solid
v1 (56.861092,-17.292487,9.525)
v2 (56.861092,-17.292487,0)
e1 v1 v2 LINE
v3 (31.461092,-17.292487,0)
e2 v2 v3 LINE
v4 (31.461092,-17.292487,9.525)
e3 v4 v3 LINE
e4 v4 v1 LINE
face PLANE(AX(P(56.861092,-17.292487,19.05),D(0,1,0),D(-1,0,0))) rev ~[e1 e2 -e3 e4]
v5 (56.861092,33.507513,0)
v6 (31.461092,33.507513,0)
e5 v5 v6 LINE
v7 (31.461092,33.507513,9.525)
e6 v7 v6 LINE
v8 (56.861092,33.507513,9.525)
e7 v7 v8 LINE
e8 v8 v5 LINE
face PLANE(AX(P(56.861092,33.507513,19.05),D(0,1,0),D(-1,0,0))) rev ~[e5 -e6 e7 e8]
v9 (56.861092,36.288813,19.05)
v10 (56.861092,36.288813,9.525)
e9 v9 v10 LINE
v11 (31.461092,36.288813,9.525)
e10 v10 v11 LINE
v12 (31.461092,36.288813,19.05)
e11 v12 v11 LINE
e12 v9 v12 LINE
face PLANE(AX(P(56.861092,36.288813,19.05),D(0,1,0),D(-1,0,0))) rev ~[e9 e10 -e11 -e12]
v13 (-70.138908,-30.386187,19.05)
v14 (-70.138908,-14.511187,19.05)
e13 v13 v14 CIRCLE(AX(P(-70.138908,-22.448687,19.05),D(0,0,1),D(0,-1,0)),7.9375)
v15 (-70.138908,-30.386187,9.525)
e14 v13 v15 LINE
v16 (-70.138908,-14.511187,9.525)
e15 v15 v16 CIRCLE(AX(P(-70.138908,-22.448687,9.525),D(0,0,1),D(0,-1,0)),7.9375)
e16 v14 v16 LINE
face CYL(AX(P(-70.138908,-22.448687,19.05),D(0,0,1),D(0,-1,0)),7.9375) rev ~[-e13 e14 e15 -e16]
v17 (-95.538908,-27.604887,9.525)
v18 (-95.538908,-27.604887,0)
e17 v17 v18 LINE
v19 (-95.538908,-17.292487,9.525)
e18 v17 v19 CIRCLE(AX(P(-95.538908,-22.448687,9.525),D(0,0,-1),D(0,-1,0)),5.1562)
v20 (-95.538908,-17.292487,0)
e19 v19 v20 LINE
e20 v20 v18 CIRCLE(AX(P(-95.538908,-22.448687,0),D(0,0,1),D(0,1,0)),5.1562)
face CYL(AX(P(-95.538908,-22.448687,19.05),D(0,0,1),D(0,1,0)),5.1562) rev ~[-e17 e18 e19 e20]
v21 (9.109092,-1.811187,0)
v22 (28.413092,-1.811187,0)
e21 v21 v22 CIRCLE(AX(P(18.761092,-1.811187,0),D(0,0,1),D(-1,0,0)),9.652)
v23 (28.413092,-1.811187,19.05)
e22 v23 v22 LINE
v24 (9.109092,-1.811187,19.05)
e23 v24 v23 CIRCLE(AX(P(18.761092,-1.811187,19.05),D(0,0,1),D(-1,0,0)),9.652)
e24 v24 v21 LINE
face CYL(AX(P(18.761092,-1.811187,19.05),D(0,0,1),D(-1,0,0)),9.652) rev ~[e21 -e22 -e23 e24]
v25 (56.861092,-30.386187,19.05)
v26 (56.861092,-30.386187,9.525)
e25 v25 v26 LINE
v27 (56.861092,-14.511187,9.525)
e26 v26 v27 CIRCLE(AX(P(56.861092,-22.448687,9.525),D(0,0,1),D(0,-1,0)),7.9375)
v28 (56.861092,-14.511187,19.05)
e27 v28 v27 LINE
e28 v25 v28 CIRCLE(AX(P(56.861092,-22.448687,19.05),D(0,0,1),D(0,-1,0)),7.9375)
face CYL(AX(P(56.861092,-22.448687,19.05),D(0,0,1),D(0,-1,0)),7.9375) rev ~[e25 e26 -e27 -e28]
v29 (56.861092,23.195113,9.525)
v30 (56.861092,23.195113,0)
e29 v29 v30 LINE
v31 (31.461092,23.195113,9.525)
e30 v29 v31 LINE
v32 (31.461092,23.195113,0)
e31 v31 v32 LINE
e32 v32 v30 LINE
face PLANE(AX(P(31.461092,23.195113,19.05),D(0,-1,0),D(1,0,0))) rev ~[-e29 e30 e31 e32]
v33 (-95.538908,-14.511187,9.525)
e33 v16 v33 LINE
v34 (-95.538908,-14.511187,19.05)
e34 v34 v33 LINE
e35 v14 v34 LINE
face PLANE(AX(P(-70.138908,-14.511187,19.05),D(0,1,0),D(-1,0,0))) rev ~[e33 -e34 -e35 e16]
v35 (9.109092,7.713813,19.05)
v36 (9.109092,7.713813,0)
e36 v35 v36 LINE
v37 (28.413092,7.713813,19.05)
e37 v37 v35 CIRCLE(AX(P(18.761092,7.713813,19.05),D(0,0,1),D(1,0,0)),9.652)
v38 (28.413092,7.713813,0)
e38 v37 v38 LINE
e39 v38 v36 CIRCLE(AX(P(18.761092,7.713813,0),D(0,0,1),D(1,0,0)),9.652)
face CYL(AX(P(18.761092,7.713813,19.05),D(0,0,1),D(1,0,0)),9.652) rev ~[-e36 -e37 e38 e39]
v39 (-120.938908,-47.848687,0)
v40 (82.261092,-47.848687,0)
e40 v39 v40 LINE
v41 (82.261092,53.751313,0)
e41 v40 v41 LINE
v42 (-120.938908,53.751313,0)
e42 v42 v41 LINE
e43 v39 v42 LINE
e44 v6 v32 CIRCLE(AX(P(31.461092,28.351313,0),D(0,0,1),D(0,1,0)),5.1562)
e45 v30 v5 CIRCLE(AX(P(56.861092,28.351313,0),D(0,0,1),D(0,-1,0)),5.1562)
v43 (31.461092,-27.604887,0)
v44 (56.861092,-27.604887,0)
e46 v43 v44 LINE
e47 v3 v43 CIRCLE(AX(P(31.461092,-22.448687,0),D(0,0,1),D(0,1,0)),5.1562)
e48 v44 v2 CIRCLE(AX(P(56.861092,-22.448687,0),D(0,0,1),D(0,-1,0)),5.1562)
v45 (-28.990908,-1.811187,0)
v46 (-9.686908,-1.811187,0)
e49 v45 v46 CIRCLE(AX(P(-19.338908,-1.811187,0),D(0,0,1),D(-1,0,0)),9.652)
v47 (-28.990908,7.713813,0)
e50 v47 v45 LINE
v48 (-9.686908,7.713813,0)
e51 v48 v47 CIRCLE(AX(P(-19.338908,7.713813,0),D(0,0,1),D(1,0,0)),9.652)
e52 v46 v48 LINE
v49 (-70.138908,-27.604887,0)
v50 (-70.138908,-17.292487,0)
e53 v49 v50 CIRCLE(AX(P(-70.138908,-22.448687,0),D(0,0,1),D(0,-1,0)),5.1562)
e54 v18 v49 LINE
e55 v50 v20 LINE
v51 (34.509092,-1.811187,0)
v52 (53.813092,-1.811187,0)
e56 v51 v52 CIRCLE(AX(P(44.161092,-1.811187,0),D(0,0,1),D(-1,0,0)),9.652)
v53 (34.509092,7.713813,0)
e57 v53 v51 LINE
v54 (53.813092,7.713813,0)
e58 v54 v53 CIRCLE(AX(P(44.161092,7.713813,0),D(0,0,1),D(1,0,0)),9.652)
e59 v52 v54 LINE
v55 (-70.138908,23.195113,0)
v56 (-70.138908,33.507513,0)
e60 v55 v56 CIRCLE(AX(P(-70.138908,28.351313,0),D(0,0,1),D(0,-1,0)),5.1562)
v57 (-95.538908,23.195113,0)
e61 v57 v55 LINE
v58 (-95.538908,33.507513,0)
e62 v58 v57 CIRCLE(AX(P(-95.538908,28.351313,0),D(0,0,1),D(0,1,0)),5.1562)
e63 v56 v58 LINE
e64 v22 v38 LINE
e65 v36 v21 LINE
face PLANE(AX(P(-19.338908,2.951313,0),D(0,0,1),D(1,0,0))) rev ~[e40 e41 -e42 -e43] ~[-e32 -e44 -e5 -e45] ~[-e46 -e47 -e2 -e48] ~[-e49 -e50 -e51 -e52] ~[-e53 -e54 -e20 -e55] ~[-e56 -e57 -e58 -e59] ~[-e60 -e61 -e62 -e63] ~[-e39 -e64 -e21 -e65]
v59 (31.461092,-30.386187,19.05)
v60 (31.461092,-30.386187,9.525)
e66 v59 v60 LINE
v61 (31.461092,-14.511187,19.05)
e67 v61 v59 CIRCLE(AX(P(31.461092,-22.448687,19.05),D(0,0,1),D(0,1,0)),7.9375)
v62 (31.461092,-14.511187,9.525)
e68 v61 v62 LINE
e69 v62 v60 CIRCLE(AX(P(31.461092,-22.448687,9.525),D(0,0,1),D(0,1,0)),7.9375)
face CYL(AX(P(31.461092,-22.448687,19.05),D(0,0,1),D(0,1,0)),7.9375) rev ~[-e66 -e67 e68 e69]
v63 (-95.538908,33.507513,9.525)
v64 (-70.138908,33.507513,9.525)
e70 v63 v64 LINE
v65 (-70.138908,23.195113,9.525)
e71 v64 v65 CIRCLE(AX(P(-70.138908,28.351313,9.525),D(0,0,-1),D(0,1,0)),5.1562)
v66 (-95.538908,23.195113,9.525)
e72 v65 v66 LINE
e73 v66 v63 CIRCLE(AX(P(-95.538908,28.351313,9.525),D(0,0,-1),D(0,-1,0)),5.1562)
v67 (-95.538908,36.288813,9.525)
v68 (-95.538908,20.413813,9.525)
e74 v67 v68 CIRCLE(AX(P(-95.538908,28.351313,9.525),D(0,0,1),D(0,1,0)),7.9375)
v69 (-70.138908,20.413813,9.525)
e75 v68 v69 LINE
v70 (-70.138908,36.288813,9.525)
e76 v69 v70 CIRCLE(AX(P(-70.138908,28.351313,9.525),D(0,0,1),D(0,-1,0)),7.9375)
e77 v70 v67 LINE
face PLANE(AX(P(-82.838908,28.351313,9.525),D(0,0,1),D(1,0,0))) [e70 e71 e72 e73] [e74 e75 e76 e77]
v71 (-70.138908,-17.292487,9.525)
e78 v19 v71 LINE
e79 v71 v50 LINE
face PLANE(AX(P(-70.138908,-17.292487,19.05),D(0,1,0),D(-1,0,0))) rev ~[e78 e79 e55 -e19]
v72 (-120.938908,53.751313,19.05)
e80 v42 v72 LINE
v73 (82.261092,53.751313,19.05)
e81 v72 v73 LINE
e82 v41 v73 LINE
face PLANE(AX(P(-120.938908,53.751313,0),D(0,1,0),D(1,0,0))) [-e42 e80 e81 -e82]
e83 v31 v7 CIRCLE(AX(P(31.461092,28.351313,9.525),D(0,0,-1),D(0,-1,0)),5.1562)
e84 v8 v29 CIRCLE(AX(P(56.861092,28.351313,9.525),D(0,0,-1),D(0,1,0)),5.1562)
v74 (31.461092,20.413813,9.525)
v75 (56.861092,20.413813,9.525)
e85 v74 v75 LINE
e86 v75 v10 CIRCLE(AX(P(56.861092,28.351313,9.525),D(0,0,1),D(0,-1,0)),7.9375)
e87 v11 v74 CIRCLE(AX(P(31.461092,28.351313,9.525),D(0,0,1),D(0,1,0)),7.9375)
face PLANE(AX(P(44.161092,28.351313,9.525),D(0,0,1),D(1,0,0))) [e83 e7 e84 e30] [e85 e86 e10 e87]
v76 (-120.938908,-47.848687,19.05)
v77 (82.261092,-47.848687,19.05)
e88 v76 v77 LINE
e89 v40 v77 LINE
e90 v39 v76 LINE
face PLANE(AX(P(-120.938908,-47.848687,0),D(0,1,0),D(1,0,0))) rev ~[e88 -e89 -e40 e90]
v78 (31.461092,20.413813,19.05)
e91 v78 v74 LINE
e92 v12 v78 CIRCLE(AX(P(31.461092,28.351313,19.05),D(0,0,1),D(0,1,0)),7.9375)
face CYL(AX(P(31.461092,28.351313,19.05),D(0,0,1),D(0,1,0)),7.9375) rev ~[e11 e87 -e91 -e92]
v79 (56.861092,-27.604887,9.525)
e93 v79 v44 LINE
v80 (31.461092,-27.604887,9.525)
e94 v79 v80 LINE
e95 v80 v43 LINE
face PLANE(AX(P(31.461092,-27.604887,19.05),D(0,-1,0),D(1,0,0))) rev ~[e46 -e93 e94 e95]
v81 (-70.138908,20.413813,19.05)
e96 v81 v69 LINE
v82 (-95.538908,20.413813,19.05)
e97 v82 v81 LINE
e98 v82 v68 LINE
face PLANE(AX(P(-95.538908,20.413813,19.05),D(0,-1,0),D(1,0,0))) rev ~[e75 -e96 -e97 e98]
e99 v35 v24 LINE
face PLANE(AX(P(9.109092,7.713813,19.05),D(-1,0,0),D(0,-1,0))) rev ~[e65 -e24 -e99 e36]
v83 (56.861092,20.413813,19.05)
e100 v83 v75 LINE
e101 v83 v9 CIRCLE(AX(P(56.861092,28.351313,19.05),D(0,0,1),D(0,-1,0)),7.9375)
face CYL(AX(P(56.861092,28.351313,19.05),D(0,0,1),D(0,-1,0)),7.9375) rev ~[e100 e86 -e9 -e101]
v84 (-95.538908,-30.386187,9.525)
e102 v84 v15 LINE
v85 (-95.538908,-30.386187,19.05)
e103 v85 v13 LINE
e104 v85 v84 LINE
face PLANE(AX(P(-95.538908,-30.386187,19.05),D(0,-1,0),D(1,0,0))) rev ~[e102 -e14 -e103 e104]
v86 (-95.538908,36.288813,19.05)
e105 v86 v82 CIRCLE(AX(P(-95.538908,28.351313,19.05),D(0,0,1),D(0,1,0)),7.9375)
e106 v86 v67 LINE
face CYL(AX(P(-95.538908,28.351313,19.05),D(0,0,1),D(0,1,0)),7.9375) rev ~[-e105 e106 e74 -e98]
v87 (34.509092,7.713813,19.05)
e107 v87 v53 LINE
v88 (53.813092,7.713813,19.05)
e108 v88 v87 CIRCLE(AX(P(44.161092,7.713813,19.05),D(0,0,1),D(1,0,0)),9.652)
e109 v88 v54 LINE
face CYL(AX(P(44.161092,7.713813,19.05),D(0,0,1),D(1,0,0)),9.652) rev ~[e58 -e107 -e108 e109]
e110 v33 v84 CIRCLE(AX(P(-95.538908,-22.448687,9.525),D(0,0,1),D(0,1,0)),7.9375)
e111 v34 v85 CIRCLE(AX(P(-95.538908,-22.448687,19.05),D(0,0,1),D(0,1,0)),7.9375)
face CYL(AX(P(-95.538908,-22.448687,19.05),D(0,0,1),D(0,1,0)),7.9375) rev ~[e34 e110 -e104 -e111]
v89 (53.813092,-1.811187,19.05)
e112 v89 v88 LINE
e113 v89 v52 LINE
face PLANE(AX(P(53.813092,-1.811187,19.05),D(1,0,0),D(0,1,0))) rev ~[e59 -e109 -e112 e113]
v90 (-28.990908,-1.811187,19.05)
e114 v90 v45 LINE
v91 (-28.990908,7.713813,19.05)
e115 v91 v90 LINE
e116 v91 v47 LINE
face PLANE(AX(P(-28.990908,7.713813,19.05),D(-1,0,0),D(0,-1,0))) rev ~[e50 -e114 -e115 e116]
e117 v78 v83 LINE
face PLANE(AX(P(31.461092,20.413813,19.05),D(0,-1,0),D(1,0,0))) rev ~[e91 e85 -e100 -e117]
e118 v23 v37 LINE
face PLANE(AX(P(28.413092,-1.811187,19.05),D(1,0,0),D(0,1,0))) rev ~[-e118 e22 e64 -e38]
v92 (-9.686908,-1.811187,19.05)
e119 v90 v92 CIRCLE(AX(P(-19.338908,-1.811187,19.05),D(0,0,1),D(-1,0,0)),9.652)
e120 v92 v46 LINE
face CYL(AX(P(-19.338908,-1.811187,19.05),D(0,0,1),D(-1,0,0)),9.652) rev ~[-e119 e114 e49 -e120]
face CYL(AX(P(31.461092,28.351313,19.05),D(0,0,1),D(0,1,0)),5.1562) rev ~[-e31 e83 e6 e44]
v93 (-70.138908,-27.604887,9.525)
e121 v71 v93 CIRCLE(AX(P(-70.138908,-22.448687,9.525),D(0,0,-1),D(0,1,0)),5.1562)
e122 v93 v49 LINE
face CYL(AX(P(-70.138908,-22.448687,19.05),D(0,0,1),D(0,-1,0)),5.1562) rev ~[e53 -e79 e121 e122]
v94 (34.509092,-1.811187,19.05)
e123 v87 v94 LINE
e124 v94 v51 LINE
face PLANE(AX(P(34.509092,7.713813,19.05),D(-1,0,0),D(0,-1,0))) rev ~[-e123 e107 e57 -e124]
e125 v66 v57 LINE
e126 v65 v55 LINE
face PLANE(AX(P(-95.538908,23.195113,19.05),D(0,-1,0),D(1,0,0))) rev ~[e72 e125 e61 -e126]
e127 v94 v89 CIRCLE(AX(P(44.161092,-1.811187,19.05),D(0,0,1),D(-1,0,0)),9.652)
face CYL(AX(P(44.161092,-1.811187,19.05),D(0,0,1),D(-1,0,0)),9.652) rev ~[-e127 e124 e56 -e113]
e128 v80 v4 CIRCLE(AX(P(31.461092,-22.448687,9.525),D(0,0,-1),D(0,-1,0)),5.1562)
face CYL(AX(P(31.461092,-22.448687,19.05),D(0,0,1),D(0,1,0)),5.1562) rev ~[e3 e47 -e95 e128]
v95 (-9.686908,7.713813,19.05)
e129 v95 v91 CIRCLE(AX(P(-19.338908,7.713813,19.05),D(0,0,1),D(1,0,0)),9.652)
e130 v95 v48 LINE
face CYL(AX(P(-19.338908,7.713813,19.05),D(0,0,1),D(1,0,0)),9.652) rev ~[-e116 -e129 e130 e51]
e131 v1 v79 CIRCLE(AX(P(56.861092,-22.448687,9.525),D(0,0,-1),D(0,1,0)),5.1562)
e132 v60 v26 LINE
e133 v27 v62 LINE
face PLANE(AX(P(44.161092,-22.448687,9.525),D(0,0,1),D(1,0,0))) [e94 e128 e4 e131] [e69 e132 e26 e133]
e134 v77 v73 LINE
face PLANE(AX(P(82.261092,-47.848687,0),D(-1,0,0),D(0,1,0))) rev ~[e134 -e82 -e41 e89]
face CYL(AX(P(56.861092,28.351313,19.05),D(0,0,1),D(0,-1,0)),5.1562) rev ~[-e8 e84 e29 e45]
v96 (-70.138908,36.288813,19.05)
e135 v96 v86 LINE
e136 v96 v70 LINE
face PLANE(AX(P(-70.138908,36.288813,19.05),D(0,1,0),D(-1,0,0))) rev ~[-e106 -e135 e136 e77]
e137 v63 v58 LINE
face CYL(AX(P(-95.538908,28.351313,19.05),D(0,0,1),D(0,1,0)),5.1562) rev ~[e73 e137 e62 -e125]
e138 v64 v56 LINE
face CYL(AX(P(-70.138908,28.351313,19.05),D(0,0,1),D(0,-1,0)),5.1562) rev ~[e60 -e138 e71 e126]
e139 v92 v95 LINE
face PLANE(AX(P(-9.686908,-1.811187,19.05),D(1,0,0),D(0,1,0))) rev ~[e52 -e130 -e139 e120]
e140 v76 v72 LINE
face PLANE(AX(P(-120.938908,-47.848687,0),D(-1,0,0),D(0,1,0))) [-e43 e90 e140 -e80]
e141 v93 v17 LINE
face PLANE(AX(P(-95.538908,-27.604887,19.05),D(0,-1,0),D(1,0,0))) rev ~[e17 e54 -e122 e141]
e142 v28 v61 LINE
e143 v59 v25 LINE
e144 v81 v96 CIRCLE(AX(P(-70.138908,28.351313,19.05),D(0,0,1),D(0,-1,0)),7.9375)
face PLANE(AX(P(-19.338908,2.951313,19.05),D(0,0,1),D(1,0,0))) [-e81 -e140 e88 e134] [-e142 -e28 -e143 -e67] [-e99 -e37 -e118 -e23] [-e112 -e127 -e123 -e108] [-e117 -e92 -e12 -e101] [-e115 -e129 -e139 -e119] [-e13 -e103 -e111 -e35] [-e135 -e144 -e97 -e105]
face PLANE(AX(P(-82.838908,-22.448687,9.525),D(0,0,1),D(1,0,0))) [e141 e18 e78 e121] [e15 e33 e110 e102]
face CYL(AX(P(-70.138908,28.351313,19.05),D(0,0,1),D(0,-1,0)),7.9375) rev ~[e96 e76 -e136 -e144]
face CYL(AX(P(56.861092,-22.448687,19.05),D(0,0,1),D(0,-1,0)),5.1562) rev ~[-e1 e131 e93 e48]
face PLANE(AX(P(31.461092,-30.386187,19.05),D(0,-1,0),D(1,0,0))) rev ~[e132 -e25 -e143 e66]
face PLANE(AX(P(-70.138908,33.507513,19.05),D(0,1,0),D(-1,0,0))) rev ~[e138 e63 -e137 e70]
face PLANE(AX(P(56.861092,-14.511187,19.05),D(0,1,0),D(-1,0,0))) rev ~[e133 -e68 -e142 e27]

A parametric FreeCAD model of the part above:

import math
import FreeCAD as App
import Part
import Sketcher
from FreeCAD import Vector
Q = App.Units.Quantity

doc = App.newDocument("Part")
params = doc.addObject("Spreadsheet::Sheet", "Params")
for row, (alias, value) in enumerate([
    ("sketch1_width", "8 in"),
    ("sketch1_height", "4 in"),
    ("pad1_length", "0.75 in"),
    ("sketch2_width", "1 in"),
    ("sketch2_radius", "0.203 in"),
    ("sketch3_width", "1 in"),
    ("sketch3_radius", "0.3125 in"),
    ("sketch3_radius2", "0.203 in"),
    ("pocket2_length", "0.375 in"),
    ("sketch4_radius", "0.38 in"),
    ("sketch4_height", "0.375 in"),
], start=1):
    params.set(f"A{row}", alias)
    params.set(f"B{row}", "=" + value)
    params.setAlias(f"B{row}", alias)

body = doc.addObject("PartDesign::Body", "Body")

sketch1 = body.newObject("Sketcher::SketchObject", "Sketch")
sketch1.AttachmentSupport = (doc.getObject("XY_Plane"), [""])
sketch1.MapMode = "FlatFace"
sketch1.addGeometry(Part.LineSegment(Vector(-121, 54, 0), Vector(-121, -48, 0)), False)
sketch1.addGeometry(Part.LineSegment(Vector(-121, -48, 0), Vector(82, -48, 0)), False)
sketch1.addGeometry(Part.LineSegment(Vector(82, -48, 0), Vector(82, 54, 0)), False)
sketch1.addGeometry(Part.LineSegment(Vector(82, 54, 0), Vector(-121, 54, 0)), False)
sketch1.addConstraint(Sketcher.Constraint("Coincident", 0, 2, 1, 1))
sketch1.addConstraint(Sketcher.Constraint("Coincident", 1, 2, 2, 1))
sketch1.addConstraint(Sketcher.Constraint("Coincident", 2, 2, 3, 1))
sketch1.addConstraint(Sketcher.Constraint("Coincident", 3, 2, 0, 1))
sketch1.addConstraint(Sketcher.Constraint("Vertical", 0))
sketch1.addConstraint(Sketcher.Constraint("Horizontal", 1))
sketch1.addConstraint(Sketcher.Constraint("Vertical", 2))
sketch1.addConstraint(Sketcher.Constraint("Horizontal", 3))
sketch1.addConstraint(Sketcher.Constraint("DistanceX", 1, 1, 1, 2, Q("8 in")))
sketch1.addConstraint(Sketcher.Constraint("DistanceY", 0, 2, 0, 1, Q("4 in")))
sketch1.addConstraint(Sketcher.Constraint("DistanceX", 0, 2, -1, 1, Q("120.938908 mm")))
sketch1.addConstraint(Sketcher.Constraint("DistanceY", 0, 2, -1, 1, Q("47.848687 mm")))
sketch1.setExpression("Constraints[8]", "Params.sketch1_width")
sketch1.setExpression("Constraints[9]", "Params.sketch1_height")
pad1 = body.newObject("PartDesign::Pad", "Pad")
pad1.Profile = sketch1
pad1.setExpression("Length", "Params.pad1_length")

sketch2 = body.newObject("Sketcher::SketchObject", "Sketch001")
sketch2.AttachmentSupport = (doc.getObject("XY_Plane"), [""])
sketch2.MapMode = "FlatFace"
sketch2.AttachmentOffset = App.Placement(Vector(0, 0, 0.75 * 25.4), App.Rotation())
sketch2.addGeometry(Part.ArcOfCircle(Part.Circle(Vector(-96, 28, 0), Vector(0, 0, 1), 5), math.radians(90), math.radians(270)), False)
sketch2.addGeometry(Part.LineSegment(Vector(-96, 23, 0), Vector(-70, 23, 0)), False)
sketch2.addGeometry(Part.ArcOfCircle(Part.Circle(Vector(-70, 28, 0), Vector(0, 0, 1), 5), math.radians(-90), math.radians(90)), False)
sketch2.addGeometry(Part.LineSegment(Vector(-70, 34, 0), Vector(-96, 34, 0)), False)
sketch2.addGeometry(Part.LineSegment(Vector(57, 34, 0), Vector(31, 34, 0)), False)
sketch2.addGeometry(Part.ArcOfCircle(Part.Circle(Vector(31, 28, 0), Vector(0, 0, 1), 5), math.radians(90), math.radians(270)), False)
sketch2.addGeometry(Part.LineSegment(Vector(31, 23, 0), Vector(57, 23, 0)), False)
sketch2.addGeometry(Part.ArcOfCircle(Part.Circle(Vector(57, 28, 0), Vector(0, 0, 1), 5), math.radians(-90), math.radians(90)), False)
sketch2.addGeometry(Part.LineSegment(Vector(31, -28, 0), Vector(57, -28, 0)), False)
sketch2.addGeometry(Part.ArcOfCircle(Part.Circle(Vector(57, -22, 0), Vector(0, 0, 1), 5), math.radians(-90), math.radians(90)), False)
sketch2.addGeometry(Part.LineSegment(Vector(57, -17, 0), Vector(31, -17, 0)), False)
sketch2.addGeometry(Part.ArcOfCircle(Part.Circle(Vector(31, -22, 0), Vector(0, 0, 1), 5), math.radians(90), math.radians(270)), False)
sketch2.addGeometry(Part.LineSegment(Vector(-70, -17, 0), Vector(-96, -17, 0)), False)
sketch2.addGeometry(Part.ArcOfCircle(Part.Circle(Vector(-96, -22, 0), Vector(0, 0, 1), 5), math.radians(90), math.radians(270)), False)
sketch2.addGeometry(Part.LineSegment(Vector(-96, -28, 0), Vector(-70, -28, 0)), False)
sketch2.addGeometry(Part.ArcOfCircle(Part.Circle(Vector(-70, -22, 0), Vector(0, 0, 1), 5), math.radians(-90), math.radians(90)), False)
sketch2.addConstraint(Sketcher.Constraint("Tangent", 0, 2, 1, 1))
sketch2.addConstraint(Sketcher.Constraint("Tangent", 1, 2, 2, 1))
sketch2.addConstraint(Sketcher.Constraint("Tangent", 2, 2, 3, 1))
sketch2.addConstraint(Sketcher.Constraint("Tangent", 3, 2, 0, 1))
sketch2.addConstraint(Sketcher.Constraint("Tangent", 4, 2, 5, 1))
sketch2.addConstraint(Sketcher.Constraint("Tangent", 5, 2, 6, 1))
sketch2.addConstraint(Sketcher.Constraint("Tangent", 6, 2, 7, 1))
sketch2.addConstraint(Sketcher.Constraint("Tangent", 7, 2, 4, 1))
sketch2.addConstraint(Sketcher.Constraint("Tangent", 8, 2, 9, 1))
sketch2.addConstraint(Sketcher.Constraint("Tangent", 9, 2, 10, 1))
sketch2.addConstraint(Sketcher.Constraint("Tangent", 10, 2, 11, 1))
sketch2.addConstraint(Sketcher.Constraint("Tangent", 11, 2, 8, 1))
sketch2.addConstraint(Sketcher.Constraint("Tangent", 12, 2, 13, 1))
sketch2.addConstraint(Sketcher.Constraint("Tangent", 13, 2, 14, 1))
sketch2.addConstraint(Sketcher.Constraint("Tangent", 14, 2, 15, 1))
sketch2.addConstraint(Sketcher.Constraint("Tangent", 15, 2, 12, 1))
sketch2.addConstraint(Sketcher.Constraint("Horizontal", 1))
sketch2.addConstraint(Sketcher.Constraint("Horizontal", 3))
sketch2.addConstraint(Sketcher.Constraint("Horizontal", 4))
sketch2.addConstraint(Sketcher.Constraint("Horizontal", 6))
sketch2.addConstraint(Sketcher.Constraint("Horizontal", 8))
sketch2.addConstraint(Sketcher.Constraint("Horizontal", 10))
sketch2.addConstraint(Sketcher.Constraint("Horizontal", 12))
sketch2.addConstraint(Sketcher.Constraint("Horizontal", 14))
sketch2.addConstraint(Sketcher.Constraint("Equal", 2, 5))
sketch2.addConstraint(Sketcher.Constraint("Equal", 7, 9))
sketch2.addConstraint(Sketcher.Constraint("Equal", 11, 13))
sketch2.addConstraint(Sketcher.Constraint("Horizontal", 2, 3, 5, 3))
sketch2.addConstraint(Sketcher.Constraint("Horizontal", 11, 3, 13, 3))
sketch2.addConstraint(Sketcher.Constraint("Vertical", 7, 3, 9, 3))
sketch2.addConstraint(Sketcher.Constraint("Vertical", 5, 3, 11, 3))
sketch2.addConstraint(Sketcher.Constraint("Vertical", 0, 3, 13, 3))
sketch2.addConstraint(Sketcher.Constraint("Vertical", 2, 3, 15, 3))
sketch2.addConstraint(Sketcher.Constraint("Equal", 3, 4))
sketch2.addConstraint(Sketcher.Constraint("DistanceX", 1, 1, 1, 2, Q("1 in")))
sketch2.addConstraint(Sketcher.Constraint("Radius", 0, Q("0.203 in")))
sketch2.addConstraint(Sketcher.Constraint("DistanceX", 2, 3, 5, 3, Q("4 in")))
sketch2.addConstraint(Sketcher.Constraint("DistanceY", 9, 3, 7, 3, Q("2 in")))
sketch2.addConstraint(Sketcher.Constraint("DistanceX", 0, 3, -1, 1, Q("95.538908 mm")))
sketch2.addConstraint(Sketcher.Constraint("DistanceY", -1, 1, 0, 3, Q("28.351313 mm")))
sketch2.setExpression("Constraints[34]", "Params.sketch2_width")
sketch2.setExpression("Constraints[35]", "Params.sketch2_radius")
pocket1 = body.newObject("PartDesign::Pocket", "Pocket")
pocket1.Profile = sketch2
pocket1.Type = "ThroughAll"

sketch3 = body.newObject("Sketcher::SketchObject", "Sketch002")
sketch3.AttachmentSupport = (doc.getObject("XY_Plane"), [""])
sketch3.MapMode = "FlatFace"
sketch3.AttachmentOffset = App.Placement(Vector(0, 0, 0.75 * 25.4), App.Rotation())
sketch3.addGeometry(Part.ArcOfCircle(Part.Circle(Vector(-96, 28, 0), Vector(0, 0, 1), 8), math.radians(90), math.radians(270)), False)
sketch3.addGeometry(Part.LineSegment(Vector(-96, 20, 0), Vector(-70, 20, 0)), False)
sketch3.addGeometry(Part.ArcOfCircle(Part.Circle(Vector(-70, 28, 0), Vector(0, 0, 1), 8), math.radians(-90), math.radians(90)), False)
sketch3.addGeometry(Part.LineSegment(Vector(-70, 36, 0), Vector(-96, 36, 0)), False)
sketch3.addGeometry(Part.ArcOfCircle(Part.Circle(Vector(-70, 28, 0), Vector(0, 0, 1), 5), math.radians(-90), math.radians(90)), False)
sketch3.addGeometry(Part.LineSegment(Vector(-70, 23, 0), Vector(-96, 23, 0)), False)
sketch3.addGeometry(Part.ArcOfCircle(Part.Circle(Vector(-96, 28, 0), Vector(0, 0, 1), 5), math.radians(90), math.radians(270)), False)
sketch3.addGeometry(Part.LineSegment(Vector(-96, 34, 0), Vector(-70, 34, 0)), False)
sketch3.addGeometry(Part.LineSegment(Vector(57, 36, 0), Vector(31, 36, 0)), False)
sketch3.addGeometry(Part.ArcOfCircle(Part.Circle(Vector(31, 28, 0), Vector(0, 0, 1), 8), math.radians(90), math.radians(270)), False)
sketch3.addGeometry(Part.LineSegment(Vector(31, 20, 0), Vector(57, 20, 0)), False)
sketch3.addGeometry(Part.ArcOfCircle(Part.Circle(Vector(57, 28, 0), Vector(0, 0, 1), 8), math.radians(-90), math.radians(90)), False)
sketch3.addGeometry(Part.LineSegment(Vector(57, 23, 0), Vector(31, 23, 0)), False)
sketch3.addGeometry(Part.ArcOfCircle(Part.Circle(Vector(31, 28, 0), Vector(0, 0, 1), 5), math.radians(90), math.radians(270)), False)
sketch3.addGeometry(Part.LineSegment(Vector(31, 34, 0), Vector(57, 34, 0)), False)
sketch3.addGeometry(Part.ArcOfCircle(Part.Circle(Vector(57, 28, 0), Vector(0, 0, 1), 5), math.radians(-90), math.radians(90)), False)
sketch3.addGeometry(Part.LineSegment(Vector(-96, -30, 0), Vector(-70, -30, 0)), False)
sketch3.addGeometry(Part.ArcOfCircle(Part.Circle(Vector(-70, -22, 0), Vector(0, 0, 1), 8), math.radians(-90), math.radians(90)), False)
sketch3.addGeometry(Part.LineSegment(Vector(-70, -15, 0), Vector(-96, -15, 0)), False)
sketch3.addGeometry(Part.ArcOfCircle(Part.Circle(Vector(-96, -22, 0), Vector(0, 0, 1), 8), math.radians(90), math.radians(270)), False)
sketch3.addGeometry(Part.LineSegment(Vector(-70, -28, 0), Vector(-96, -28, 0)), False)
sketch3.addGeometry(Part.ArcOfCircle(Part.Circle(Vector(-96, -22, 0), Vector(0, 0, 1), 5), math.radians(90), math.radians(270)), False)
sketch3.addGeometry(Part.LineSegment(Vector(-96, -17, 0), Vector(-70, -17, 0)), False)
sketch3.addGeometry(Part.ArcOfCircle(Part.Circle(Vector(-70, -22, 0), Vector(0, 0, 1), 5), math.radians(-90), math.radians(90)), False)
sketch3.addGeometry(Part.LineSegment(Vector(31, -30, 0), Vector(57, -30, 0)), False)
sketch3.addGeometry(Part.ArcOfCircle(Part.Circle(Vector(57, -22, 0), Vector(0, 0, 1), 8), math.radians(-90), math.radians(90)), False)
sketch3.addGeometry(Part.LineSegment(Vector(57, -15, 0), Vector(31, -15, 0)), False)
sketch3.addGeometry(Part.ArcOfCircle(Part.Circle(Vector(31, -22, 0), Vector(0, 0, 1), 8), math.radians(90), math.radians(270)), False)
sketch3.addGeometry(Part.LineSegment(Vector(31, -17, 0), Vector(57, -17, 0)), False)
sketch3.addGeometry(Part.ArcOfCircle(Part.Circle(Vector(57, -22, 0), Vector(0, 0, 1), 5), math.radians(-90), math.radians(90)), False)
sketch3.addGeometry(Part.LineSegment(Vector(57, -28, 0), Vector(31, -28, 0)), False)
sketch3.addGeometry(Part.ArcOfCircle(Part.Circle(Vector(31, -22, 0), Vector(0, 0, 1), 5), math.radians(90), math.radians(270)), False)
sketch3.addConstraint(Sketcher.Constraint("Tangent", 0, 2, 1, 1))
sketch3.addConstraint(Sketcher.Constraint("Tangent", 1, 2, 2, 1))
sketch3.addConstraint(Sketcher.Constraint("Tangent", 2, 2, 3, 1))
sketch3.addConstraint(Sketcher.Constraint("Tangent", 3, 2, 0, 1))
sketch3.addConstraint(Sketcher.Constraint("Tangent", 4, 1, 5, 1))
sketch3.addConstraint(Sketcher.Constraint("Tangent", 5, 2, 6, 2))
sketch3.addConstraint(Sketcher.Constraint("Tangent", 6, 1, 7, 1))
sketch3.addConstraint(Sketcher.Constraint("Tangent", 7, 2, 4, 2))
sketch3.addConstraint(Sketcher.Constraint("Tangent", 8, 2, 9, 1))
sketch3.addConstraint(Sketcher.Constraint("Tangent", 9, 2, 10, 1))
sketch3.addConstraint(Sketcher.Constraint("Tangent", 10, 2, 11, 1))
sketch3.addConstraint(Sketcher.Constraint("Tangent", 11, 2, 8, 1))
sketch3.addConstraint(Sketcher.Constraint("Tangent", 12, 2, 13, 2))
sketch3.addConstraint(Sketcher.Constraint("Tangent", 13, 1, 14, 1))
sketch3.addConstraint(Sketcher.Constraint("Tangent", 14, 2, 15, 2))
sketch3.addConstraint(Sketcher.Constraint("Tangent", 15, 1, 12, 1))
sketch3.addConstraint(Sketcher.Constraint("Tangent", 16, 2, 17, 1))
sketch3.addConstraint(Sketcher.Constraint("Tangent", 17, 2, 18, 1))
sketch3.addConstraint(Sketcher.Constraint("Tangent", 18, 2, 19, 1))
sketch3.addConstraint(Sketcher.Constraint("Tangent", 19, 2, 16, 1))
sketch3.addConstraint(Sketcher.Constraint("Tangent", 20, 2, 21, 2))
sketch3.addConstraint(Sketcher.Constraint("Tangent", 21, 1, 22, 1))
sketch3.addConstraint(Sketcher.Constraint("Tangent", 22, 2, 23, 2))
sketch3.addConstraint(Sketcher.Constraint("Tangent", 23, 1, 20, 1))
sketch3.addConstraint(Sketcher.Constraint("Tangent", 24, 2, 25, 1))
sketch3.addConstraint(Sketcher.Constraint("Tangent", 25, 2, 26, 1))
sketch3.addConstraint(Sketcher.Constraint("Tangent", 26, 2, 27, 1))
sketch3.addConstraint(Sketcher.Constraint("Tangent", 27, 2, 24, 1))
sketch3.addConstraint(Sketcher.Constraint("Tangent", 28, 2, 29, 2))
sketch3.addConstraint(Sketcher.Constraint("Tangent", 29, 1, 30, 1))
sketch3.addConstraint(Sketcher.Constraint("Tangent", 30, 2, 31, 2))
sketch3.addConstraint(Sketcher.Constraint("Tangent", 31, 1, 28, 1))
sketch3.addConstraint(Sketcher.Constraint("Horizontal", 1))
sketch3.addConstraint(Sketcher.Constraint("Horizontal", 3))
sketch3.addConstraint(Sketcher.Constraint("Horizontal", 5))
sketch3.addConstraint(Sketcher.Constraint("Horizontal", 7))
sketch3.addConstraint(Sketcher.Constraint("Horizontal", 8))
sketch3.addConstraint(Sketcher.Constraint("Horizontal", 10))
sketch3.addConstraint(Sketcher.Constraint("Horizontal", 12))
sketch3.addConstraint(Sketcher.Constraint("Horizontal", 14))
sketch3.addConstraint(Sketcher.Constraint("Horizontal", 16))
sketch3.addConstraint(Sketcher.Constraint("Horizontal", 18))
sketch3.addConstraint(Sketcher.Constraint("Horizontal", 20))
sketch3.addConstraint(Sketcher.Constraint("Horizontal", 22))
sketch3.addConstraint(Sketcher.Constraint("Horizontal", 24))
sketch3.addConstraint(Sketcher.Constraint("Horizontal", 26))
sketch3.addConstraint(Sketcher.Constraint("Horizontal", 28))
sketch3.addConstraint(Sketcher.Constraint("Horizontal", 30))
sketch3.addConstraint(Sketcher.Constraint("Coincident", 4, 3, 2, 3))
sketch3.addConstraint(Sketcher.Constraint("Coincident", 13, 3, 9, 3))
sketch3.addConstraint(Sketcher.Constraint("Coincident", 21, 3, 19, 3))
sketch3.addConstraint(Sketcher.Constraint("Coincident", 29, 3, 25, 3))
sketch3.addConstraint(Sketcher.Constraint("Equal", 2, 9))
sketch3.addConstraint(Sketcher.Constraint("Equal", 6, 13))
sketch3.addConstraint(Sketcher.Constraint("Equal", 11, 17))
sketch3.addConstraint(Sketcher.Constraint("Equal", 15, 21))
sketch3.addConstraint(Sketcher.Constraint("Equal", 19, 25))
sketch3.addConstraint(Sketcher.Constraint("Equal", 23, 29))
sketch3.addConstraint(Sketcher.Constraint("Horizontal", 6, 3, 9, 3))
sketch3.addConstraint(Sketcher.Constraint("Horizontal", 23, 3, 25, 3))
sketch3.addConstraint(Sketcher.Constraint("Vertical", 4, 3, 17, 3))
sketch3.addConstraint(Sketcher.Constraint("Vertical", 6, 3, 19, 3))
sketch3.addConstraint(Sketcher.Constraint("Vertical", 4, 3, 23, 3))
sketch3.addConstraint(Sketcher.Constraint("Vertical", 15, 3, 25, 3))
sketch3.addConstraint(Sketcher.Constraint("Vertical", 13, 3, 27, 3))
sketch3.addConstraint(Sketcher.Constraint("Vertical", 13, 3, 31, 3))
sketch3.addConstraint(Sketcher.Constraint("Vertical", 21, 3, 0, 2))
sketch3.addConstraint(Sketcher.Constraint("Vertical", 29, 3, 10, 2))
sketch3.addConstraint(Sketcher.Constraint("Equal", 7, 8))
sketch3.addConstraint(Sketcher.Constraint("DistanceX", 1, 1, 1, 2, Q("1 in")))
sketch3.addConstraint(Sketcher.Constraint("Radius", 0, Q("0.3125 in")))
sketch3.addConstraint(Sketcher.Constraint("Radius", 4, Q("0.203 in")))
sketch3.addConstraint(Sketcher.Constraint("DistanceX", 2, 3, 9, 3, Q("4 in")))
sketch3.addConstraint(Sketcher.Constraint("DistanceY", 17, 3, 2, 3, Q("2 in")))
sketch3.addConstraint(Sketcher.Constraint("DistanceX", 0, 3, -1, 1, Q("95.538908 mm")))
sketch3.addConstraint(Sketcher.Constraint("DistanceY", -1, 1, 0, 3, Q("28.351313 mm")))
sketch3.setExpression("Constraints[69]", "Params.sketch3_width")
sketch3.setExpression("Constraints[70]", "Params.sketch3_radius")
sketch3.setExpression("Constraints[71]", "Params.sketch3_radius2")
pocket2 = body.newObject("PartDesign::Pocket", "Pocket001")
pocket2.Profile = sketch3
pocket2.setExpression("Length", "Params.pocket2_length")

sketch4 = body.newObject("Sketcher::SketchObject", "Sketch003")
sketch4.AttachmentSupport = (doc.getObject("XY_Plane"), [""])
sketch4.MapMode = "FlatFace"
sketch4.AttachmentOffset = App.Placement(Vector(0, 0, 0.75 * 25.4), App.Rotation())
sketch4.addGeometry(Part.LineSegment(Vector(-29, 8, 0), Vector(-29, -2, 0)), False)
sketch4.addGeometry(Part.ArcOfCircle(Part.Circle(Vector(-19, -2, 0), Vector(0, 0, 1), 10), math.radians(180), math.radians(360)), False)
sketch4.addGeometry(Part.LineSegment(Vector(-10, -2, 0), Vector(-10, 8, 0)), False)
sketch4.addGeometry(Part.ArcOfCircle(Part.Circle(Vector(-19, 8, 0), Vector(0, 0, 1), 10), math.radians(0), math.radians(180)), False)
sketch4.addGeometry(Part.LineSegment(Vector(9, 8, 0), Vector(9, -2, 0)), False)
sketch4.addGeometry(Part.ArcOfCircle(Part.Circle(Vector(19, -2, 0), Vector(0, 0, 1), 10), math.radians(180), math.radians(360)), False)
sketch4.addGeometry(Part.LineSegment(Vector(28, -2, 0), Vector(28, 8, 0)), False)
sketch4.addGeometry(Part.ArcOfCircle(Part.Circle(Vector(19, 8, 0), Vector(0, 0, 1), 10), math.radians(0), math.radians(180)), False)
sketch4.addGeometry(Part.ArcOfCircle(Part.Circle(Vector(44, 8, 0), Vector(0, 0, 1), 10), math.radians(0), math.radians(180)), False)
sketch4.addGeometry(Part.LineSegment(Vector(35, 8, 0), Vector(35, -2, 0)), False)
sketch4.addGeometry(Part.ArcOfCircle(Part.Circle(Vector(44, -2, 0), Vector(0, 0, 1), 10), math.radians(180), math.radians(360)), False)
sketch4.addGeometry(Part.LineSegment(Vector(54, -2, 0), Vector(54, 8, 0)), False)
sketch4.addConstraint(Sketcher.Constraint("Tangent", 0, 2, 1, 1))
sketch4.addConstraint(Sketcher.Constraint("Tangent", 1, 2, 2, 1))
sketch4.addConstraint(Sketcher.Constraint("Tangent", 2, 2, 3, 1))
sketch4.addConstraint(Sketcher.Constraint("Tangent", 3, 2, 0, 1))
sketch4.addConstraint(Sketcher.Constraint("Tangent", 4, 2, 5, 1))
sketch4.addConstraint(Sketcher.Constraint("Tangent", 5, 2, 6, 1))
sketch4.addConstraint(Sketcher.Constraint("Tangent", 6, 2, 7, 1))
sketch4.addConstraint(Sketcher.Constraint("Tangent", 7, 2, 4, 1))
sketch4.addConstraint(Sketcher.Constraint("Tangent", 8, 2, 9, 1))
sketch4.addConstraint(Sketcher.Constraint("Tangent", 9, 2, 10, 1))
sketch4.addConstraint(Sketcher.Constraint("Tangent", 10, 2, 11, 1))
sketch4.addConstraint(Sketcher.Constraint("Tangent", 11, 2, 8, 1))
sketch4.addConstraint(Sketcher.Constraint("Vertical", 0))
sketch4.addConstraint(Sketcher.Constraint("Vertical", 2))
sketch4.addConstraint(Sketcher.Constraint("Vertical", 4))
sketch4.addConstraint(Sketcher.Constraint("Vertical", 6))
sketch4.addConstraint(Sketcher.Constraint("Vertical", 9))
sketch4.addConstraint(Sketcher.Constraint("Vertical", 11))
sketch4.addConstraint(Sketcher.Constraint("Equal", 3, 5))
sketch4.addConstraint(Sketcher.Constraint("Equal", 7, 8))
sketch4.addConstraint(Sketcher.Constraint("Horizontal", 1, 3, 5, 3))
sketch4.addConstraint(Sketcher.Constraint("Horizontal", 3, 3, 7, 3))
sketch4.addConstraint(Sketcher.Constraint("Horizontal", 7, 3, 8, 3))
sketch4.addConstraint(Sketcher.Constraint("Horizontal", 5, 3, 10, 3))
sketch4.addConstraint(Sketcher.Constraint("Radius", 1, Q("0.38 in")))
sketch4.addConstraint(Sketcher.Constraint("DistanceX", 7, 3, 8, 3, Q("1 in")))
sketch4.addConstraint(Sketcher.Constraint("DistanceX", 1, 3, 5, 3, Q("1.5 in")))
sketch4.addConstraint(Sketcher.Constraint("DistanceY", 0, 2, 0, 1, Q("0.375 in")))
sketch4.addConstraint(Sketcher.Constraint("DistanceX", 1, 3, -1, 1, Q("19.338908 mm")))
sketch4.addConstraint(Sketcher.Constraint("DistanceY", 1, 3, -1, 1, Q("1.811187 mm")))
sketch4.setExpression("Constraints[24]", "Params.sketch4_radius")
sketch4.setExpression("Constraints[27]", "Params.sketch4_height")
pocket3 = body.newObject("PartDesign::Pocket", "Pocket002")
pocket3.Profile = sketch4
pocket3.Type = "ThroughAll"

doc.recompute()
